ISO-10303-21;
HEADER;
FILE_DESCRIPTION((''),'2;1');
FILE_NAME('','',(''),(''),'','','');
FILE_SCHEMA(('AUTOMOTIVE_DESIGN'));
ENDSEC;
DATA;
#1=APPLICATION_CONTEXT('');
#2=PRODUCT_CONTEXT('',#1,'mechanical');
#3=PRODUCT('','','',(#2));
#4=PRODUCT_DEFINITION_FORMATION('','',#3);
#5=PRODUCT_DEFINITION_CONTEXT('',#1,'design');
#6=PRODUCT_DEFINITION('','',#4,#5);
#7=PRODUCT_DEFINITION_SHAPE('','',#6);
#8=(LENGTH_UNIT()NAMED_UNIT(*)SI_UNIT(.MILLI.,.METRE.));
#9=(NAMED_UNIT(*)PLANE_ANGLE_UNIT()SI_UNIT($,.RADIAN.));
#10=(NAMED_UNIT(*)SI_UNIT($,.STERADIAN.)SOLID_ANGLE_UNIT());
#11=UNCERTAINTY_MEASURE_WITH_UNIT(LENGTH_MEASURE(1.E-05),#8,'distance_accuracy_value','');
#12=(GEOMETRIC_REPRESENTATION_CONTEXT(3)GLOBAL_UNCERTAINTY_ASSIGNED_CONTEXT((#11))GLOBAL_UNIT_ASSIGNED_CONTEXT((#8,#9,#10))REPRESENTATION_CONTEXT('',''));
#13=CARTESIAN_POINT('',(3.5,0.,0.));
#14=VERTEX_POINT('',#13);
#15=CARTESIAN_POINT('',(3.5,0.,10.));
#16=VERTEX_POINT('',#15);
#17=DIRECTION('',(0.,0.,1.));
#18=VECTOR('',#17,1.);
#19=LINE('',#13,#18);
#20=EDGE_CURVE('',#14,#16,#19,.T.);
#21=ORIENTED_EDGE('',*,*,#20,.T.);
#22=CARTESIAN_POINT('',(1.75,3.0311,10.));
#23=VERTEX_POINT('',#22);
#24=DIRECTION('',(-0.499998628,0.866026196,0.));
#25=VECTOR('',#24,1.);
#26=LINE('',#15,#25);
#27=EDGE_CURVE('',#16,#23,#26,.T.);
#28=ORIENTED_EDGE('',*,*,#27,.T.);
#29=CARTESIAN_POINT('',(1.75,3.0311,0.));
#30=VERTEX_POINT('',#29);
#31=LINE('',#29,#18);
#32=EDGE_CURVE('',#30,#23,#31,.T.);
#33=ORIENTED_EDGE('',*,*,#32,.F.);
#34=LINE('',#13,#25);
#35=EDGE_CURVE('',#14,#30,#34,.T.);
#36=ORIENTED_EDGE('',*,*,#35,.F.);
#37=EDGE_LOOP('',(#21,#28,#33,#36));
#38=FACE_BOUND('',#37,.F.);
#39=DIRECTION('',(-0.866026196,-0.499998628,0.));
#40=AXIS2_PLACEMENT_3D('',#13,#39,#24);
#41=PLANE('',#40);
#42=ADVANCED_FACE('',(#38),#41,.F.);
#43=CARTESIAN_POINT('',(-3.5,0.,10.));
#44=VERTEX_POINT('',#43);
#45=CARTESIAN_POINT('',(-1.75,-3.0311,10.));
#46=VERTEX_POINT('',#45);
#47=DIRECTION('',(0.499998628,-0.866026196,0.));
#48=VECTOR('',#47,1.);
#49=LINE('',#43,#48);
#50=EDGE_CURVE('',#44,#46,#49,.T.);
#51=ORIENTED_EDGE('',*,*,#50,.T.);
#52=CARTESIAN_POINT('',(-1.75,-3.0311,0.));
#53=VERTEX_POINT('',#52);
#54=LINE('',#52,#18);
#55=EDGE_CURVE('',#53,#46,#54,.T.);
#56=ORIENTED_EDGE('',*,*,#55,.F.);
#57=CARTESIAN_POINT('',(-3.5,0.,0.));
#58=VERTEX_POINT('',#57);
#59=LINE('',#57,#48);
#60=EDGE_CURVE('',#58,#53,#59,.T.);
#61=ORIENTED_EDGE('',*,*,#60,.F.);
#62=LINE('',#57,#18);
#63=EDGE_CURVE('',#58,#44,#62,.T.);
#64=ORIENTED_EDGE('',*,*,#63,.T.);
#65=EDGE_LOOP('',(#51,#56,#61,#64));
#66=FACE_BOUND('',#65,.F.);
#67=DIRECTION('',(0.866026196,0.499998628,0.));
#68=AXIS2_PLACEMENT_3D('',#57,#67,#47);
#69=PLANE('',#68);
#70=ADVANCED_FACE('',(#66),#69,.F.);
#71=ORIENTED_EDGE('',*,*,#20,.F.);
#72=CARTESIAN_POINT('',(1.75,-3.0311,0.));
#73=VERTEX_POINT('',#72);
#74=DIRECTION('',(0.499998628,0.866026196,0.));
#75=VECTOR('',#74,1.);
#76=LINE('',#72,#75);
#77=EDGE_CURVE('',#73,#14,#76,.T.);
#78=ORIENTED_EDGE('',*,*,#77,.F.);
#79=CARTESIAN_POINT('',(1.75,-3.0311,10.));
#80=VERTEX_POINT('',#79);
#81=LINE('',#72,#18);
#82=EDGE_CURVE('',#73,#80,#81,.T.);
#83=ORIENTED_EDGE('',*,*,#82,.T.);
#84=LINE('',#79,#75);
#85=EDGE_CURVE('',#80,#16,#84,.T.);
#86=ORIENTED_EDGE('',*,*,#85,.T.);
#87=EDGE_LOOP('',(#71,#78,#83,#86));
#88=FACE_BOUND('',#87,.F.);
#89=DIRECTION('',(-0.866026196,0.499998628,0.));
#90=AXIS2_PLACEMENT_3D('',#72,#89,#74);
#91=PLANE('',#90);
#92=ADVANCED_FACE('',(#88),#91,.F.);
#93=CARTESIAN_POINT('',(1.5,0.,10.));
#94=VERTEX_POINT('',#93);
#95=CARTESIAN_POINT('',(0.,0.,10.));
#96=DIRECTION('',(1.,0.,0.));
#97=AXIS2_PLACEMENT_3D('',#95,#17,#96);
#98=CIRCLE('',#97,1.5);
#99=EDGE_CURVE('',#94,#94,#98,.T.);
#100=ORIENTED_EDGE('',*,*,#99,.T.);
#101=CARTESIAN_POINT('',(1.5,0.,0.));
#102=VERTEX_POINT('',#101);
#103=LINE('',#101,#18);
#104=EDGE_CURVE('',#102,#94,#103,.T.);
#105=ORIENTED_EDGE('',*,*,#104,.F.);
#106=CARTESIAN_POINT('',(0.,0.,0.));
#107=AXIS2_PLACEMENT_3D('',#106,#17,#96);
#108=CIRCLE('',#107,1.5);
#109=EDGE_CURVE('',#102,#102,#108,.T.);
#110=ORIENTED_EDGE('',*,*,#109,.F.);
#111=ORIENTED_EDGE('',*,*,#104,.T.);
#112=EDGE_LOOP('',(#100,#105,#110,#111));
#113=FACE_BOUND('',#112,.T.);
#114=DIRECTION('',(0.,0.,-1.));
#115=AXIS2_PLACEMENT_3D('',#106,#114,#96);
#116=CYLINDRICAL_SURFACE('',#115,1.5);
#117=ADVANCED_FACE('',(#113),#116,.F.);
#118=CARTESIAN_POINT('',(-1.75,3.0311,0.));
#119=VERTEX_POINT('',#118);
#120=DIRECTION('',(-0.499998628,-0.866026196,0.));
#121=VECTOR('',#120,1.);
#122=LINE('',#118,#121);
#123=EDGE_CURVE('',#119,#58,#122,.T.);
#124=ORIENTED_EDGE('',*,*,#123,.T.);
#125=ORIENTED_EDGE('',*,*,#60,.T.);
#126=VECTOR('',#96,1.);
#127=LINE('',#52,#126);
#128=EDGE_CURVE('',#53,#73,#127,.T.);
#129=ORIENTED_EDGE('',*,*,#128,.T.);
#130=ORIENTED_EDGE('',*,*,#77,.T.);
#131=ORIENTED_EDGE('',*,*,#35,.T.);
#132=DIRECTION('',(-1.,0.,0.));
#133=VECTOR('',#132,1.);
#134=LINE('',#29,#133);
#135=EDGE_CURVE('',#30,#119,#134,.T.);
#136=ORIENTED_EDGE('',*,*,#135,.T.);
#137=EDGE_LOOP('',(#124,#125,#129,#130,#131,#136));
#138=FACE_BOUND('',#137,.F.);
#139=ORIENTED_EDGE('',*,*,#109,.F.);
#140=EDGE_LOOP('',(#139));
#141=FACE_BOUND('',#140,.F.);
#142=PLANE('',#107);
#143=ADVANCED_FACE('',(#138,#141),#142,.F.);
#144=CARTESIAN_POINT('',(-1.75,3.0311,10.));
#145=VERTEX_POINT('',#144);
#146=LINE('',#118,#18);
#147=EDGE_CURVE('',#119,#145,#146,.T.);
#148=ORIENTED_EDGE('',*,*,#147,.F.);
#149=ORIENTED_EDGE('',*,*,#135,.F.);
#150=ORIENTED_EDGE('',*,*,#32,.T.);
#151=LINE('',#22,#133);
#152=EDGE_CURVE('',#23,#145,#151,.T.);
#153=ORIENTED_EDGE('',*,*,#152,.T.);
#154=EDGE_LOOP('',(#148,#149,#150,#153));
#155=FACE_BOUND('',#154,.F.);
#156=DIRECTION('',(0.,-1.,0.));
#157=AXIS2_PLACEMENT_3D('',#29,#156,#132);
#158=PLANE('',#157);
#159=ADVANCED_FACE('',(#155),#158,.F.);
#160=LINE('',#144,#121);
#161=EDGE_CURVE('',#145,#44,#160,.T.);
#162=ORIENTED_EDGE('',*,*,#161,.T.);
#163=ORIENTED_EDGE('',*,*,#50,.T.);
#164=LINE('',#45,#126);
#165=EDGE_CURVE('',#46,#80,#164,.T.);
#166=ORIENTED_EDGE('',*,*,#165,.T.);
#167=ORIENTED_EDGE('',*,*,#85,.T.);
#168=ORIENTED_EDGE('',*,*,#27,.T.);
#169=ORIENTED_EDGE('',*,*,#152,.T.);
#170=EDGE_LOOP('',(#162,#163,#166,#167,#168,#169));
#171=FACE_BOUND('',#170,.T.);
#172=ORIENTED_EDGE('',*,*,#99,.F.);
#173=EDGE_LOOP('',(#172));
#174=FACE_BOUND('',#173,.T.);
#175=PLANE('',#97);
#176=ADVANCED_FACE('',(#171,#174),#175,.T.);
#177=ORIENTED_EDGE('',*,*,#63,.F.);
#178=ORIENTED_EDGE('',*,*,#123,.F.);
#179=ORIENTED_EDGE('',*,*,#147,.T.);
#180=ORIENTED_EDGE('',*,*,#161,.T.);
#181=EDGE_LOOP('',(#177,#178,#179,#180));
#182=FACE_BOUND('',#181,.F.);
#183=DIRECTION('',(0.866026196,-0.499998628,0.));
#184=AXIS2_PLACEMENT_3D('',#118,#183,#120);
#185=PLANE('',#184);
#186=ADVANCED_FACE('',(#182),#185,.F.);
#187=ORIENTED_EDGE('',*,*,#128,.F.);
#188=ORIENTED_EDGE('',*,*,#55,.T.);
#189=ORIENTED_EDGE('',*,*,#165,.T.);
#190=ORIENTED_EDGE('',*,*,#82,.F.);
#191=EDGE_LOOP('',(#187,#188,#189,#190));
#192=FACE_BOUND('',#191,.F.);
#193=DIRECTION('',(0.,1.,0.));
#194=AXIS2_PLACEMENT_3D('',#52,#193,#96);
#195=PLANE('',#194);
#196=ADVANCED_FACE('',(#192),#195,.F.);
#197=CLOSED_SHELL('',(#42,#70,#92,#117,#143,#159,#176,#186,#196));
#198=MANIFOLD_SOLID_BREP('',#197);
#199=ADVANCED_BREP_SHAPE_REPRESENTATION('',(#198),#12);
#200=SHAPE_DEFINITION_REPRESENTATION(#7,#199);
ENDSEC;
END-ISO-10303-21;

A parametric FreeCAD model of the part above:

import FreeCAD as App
import Part
import Sketcher
from FreeCAD import Vector
Q = App.Units.Quantity

doc = App.newDocument("Part")
body = doc.addObject("PartDesign::Body", "Body")

# Sketch on XY plane
sketch1 = body.newObject("Sketcher::SketchObject", "Sketch")
sketch1.AttachmentSupport = (doc.getObject("XY_Plane"), [""])
sketch1.MapMode = "FlatFace"
sketch1.addGeometry([
    Part.LineSegment(Vector(1.75, -3.0311, 0), Vector(3.5, 0, 0)),  # 0
    Part.LineSegment(Vector(3.5, 0, 0), Vector(1.75, 3.0311, 0)),  # 1
    Part.LineSegment(Vector(1.75, 3.0311, 0), Vector(-1.75, 3.0311, 0)),  # 2
    Part.LineSegment(Vector(-1.75, 3.0311, 0), Vector(-3.5, 0, 0)),  # 3
    Part.LineSegment(Vector(-3.5, 0, 0), Vector(-1.75, -3.0311, 0)),  # 4
    Part.LineSegment(Vector(-1.75, -3.0311, 0), Vector(1.75, -3.0311, 0)),  # 5
    Part.Circle(Vector(0, 0, 0), Vector(0, 0, 1), 1.5),  # 6
], False)
sketch1.addConstraint([
    Sketcher.Constraint("Coincident", 0, 2, 1, 1),
    Sketcher.Constraint("Coincident", 1, 2, 2, 1),
    Sketcher.Constraint("Coincident", 2, 2, 3, 1),
    Sketcher.Constraint("Coincident", 3, 2, 4, 1),
    Sketcher.Constraint("Coincident", 4, 2, 5, 1),
    Sketcher.Constraint("Coincident", 5, 2, 0, 1),
    Sketcher.Constraint("Horizontal", 2),
    Sketcher.Constraint("Horizontal", 5),
    Sketcher.Constraint("Coincident", 6, 3, -1, 1),
    Sketcher.Constraint("Symmetric", 0, 2, 3, 2, -1, 1),
    Sketcher.Constraint("Symmetric", 1, 2, 4, 2, -1, 1),
    Sketcher.Constraint("PointOnObject", 0, 2, -1),
    Sketcher.Constraint("Parallel", 0, 3),
    Sketcher.Constraint("Vertical", 2, 2, 4, 2),
    Sketcher.Constraint("Diameter", 6, Q("3 mm")),
    Sketcher.Constraint("Angle", 0, Q("60 deg")),
    Sketcher.Constraint("DistanceX", 2, 2, 2, 1, Q("3.5 mm")),
    Sketcher.Constraint("DistanceX", 3, 2, 0, 2, Q("7 mm")),
])
pad1 = body.newObject("PartDesign::Pad", "Pad")
pad1.Profile = sketch1
pad1.Length = 10

doc.recompute()
